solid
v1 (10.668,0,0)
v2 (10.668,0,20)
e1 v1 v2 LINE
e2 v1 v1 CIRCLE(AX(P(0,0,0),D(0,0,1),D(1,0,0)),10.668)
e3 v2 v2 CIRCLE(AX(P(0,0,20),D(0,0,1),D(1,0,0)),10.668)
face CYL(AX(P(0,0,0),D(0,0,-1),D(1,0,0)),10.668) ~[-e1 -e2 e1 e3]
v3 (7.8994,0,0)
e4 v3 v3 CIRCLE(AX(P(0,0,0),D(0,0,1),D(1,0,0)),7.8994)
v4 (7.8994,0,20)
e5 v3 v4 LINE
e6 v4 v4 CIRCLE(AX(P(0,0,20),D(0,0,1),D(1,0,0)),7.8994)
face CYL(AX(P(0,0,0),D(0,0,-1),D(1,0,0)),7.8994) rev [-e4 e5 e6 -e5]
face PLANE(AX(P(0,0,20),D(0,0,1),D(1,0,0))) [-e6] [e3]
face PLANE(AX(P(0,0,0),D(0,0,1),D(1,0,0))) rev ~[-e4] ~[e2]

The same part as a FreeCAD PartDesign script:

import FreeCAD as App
import Part
import Sketcher

V = App.Vector
Q = App.Units.Quantity

doc = App.newDocument("Part")
body = doc.addObject("PartDesign::Body", "Body")

sketch1 = doc.addObject("Sketcher::SketchObject", "Sketch")
body.addObject(sketch1)
sketch1.AttachmentSupport = (doc.XY_Plane, [""])
sketch1.MapMode = "FlatFace"
sketch1.addGeometry(Part.Circle(V(0, 0, 0), V(0, 0, 1), 10.668), False)
sketch1.addGeometry(Part.Circle(V(0, 0, 0), V(0, 0, 1), 7.8994), False)
sketch1.addConstraint(Sketcher.Constraint("Coincident", 0, 3, -1, 1))
sketch1.addConstraint(Sketcher.Constraint("Coincident", 1, 3, -1, 1))
sketch1.addConstraint(Sketcher.Constraint("Diameter", 0, Q("0.84 in")))
sketch1.addConstraint(Sketcher.Constraint("Diameter", 1, Q("0.622 in")))
pad1 = doc.addObject("PartDesign::Pad", "Pad")
body.addObject(pad1)
pad1.Profile = sketch1
pad1.Length = Q("0.7874016 in")

doc.recompute()
